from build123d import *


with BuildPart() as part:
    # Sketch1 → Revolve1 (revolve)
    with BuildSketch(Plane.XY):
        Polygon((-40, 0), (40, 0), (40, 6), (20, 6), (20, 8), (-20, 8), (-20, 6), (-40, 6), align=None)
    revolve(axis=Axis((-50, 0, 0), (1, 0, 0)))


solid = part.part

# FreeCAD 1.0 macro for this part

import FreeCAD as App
import Part
import Sketcher
from FreeCAD import Vector

doc = App.newDocument("Part")
body = doc.addObject("PartDesign::Body", "Body")

sketch1 = doc.addObject("Sketcher::SketchObject", "Sketch")
body.addObject(sketch1)
sketch1.AttachmentSupport = (doc.XY_Plane, [""])
sketch1.MapMode = "FlatFace"
sketch1.addGeometry([
    Part.LineSegment(Vector(-40, 0, 0), Vector(40, 0, 0)),
    Part.LineSegment(Vector(40, 0, 0), Vector(40, 6, 0)),
    Part.LineSegment(Vector(40, 6, 0), Vector(20, 6, 0)),
    Part.LineSegment(Vector(20, 6, 0), Vector(20, 8, 0)),
    Part.LineSegment(Vector(20, 8, 0), Vector(-20, 8, 0)),
    Part.LineSegment(Vector(-20, 8, 0), Vector(-20, 6, 0)),
    Part.LineSegment(Vector(-20, 6, 0), Vector(-40, 6, 0)),
    Part.LineSegment(Vector(-40, 6, 0), Vector(-40, 0, 0)),
], False)
sketch1.addConstraint([
    Sketcher.Constraint("Coincident", 0, 2, 1, 1),
    Sketcher.Constraint("Coincident", 1, 2, 2, 1),
    Sketcher.Constraint("Coincident", 2, 2, 3, 1),
    Sketcher.Constraint("Coincident", 3, 2, 4, 1),
    Sketcher.Constraint("Coincident", 4, 2, 5, 1),
    Sketcher.Constraint("Coincident", 5, 2, 6, 1),
    Sketcher.Constraint("Coincident", 6, 2, 7, 1),
    Sketcher.Constraint("Coincident", 7, 2, 0, 1),
    Sketcher.Constraint("Horizontal", 0),
    Sketcher.Constraint("Vertical", 1),
    Sketcher.Constraint("Horizontal", 2),
    Sketcher.Constraint("Vertical", 3),
    Sketcher.Constraint("Horizontal", 4),
    Sketcher.Constraint("Vertical", 5),
    Sketcher.Constraint("Horizontal", 6),
    Sketcher.Constraint("Vertical", 7),
    Sketcher.Constraint("Symmetric", 0, 2, 7, 2, -1, 1),
    Sketcher.Constraint("Symmetric", 2, 2, 5, 2, -2),
    Sketcher.Constraint("DistanceX", 0, 1, 0, 2, 80.0),
    Sketcher.Constraint("DistanceX", 2, 2, 2, 1, 20.0),
    Sketcher.Constraint("DistanceY", 1, 1, 1, 2, 6.0),
    Sketcher.Constraint("DistanceY", 3, 1, 3, 2, 2.0),
])
revolution = doc.addObject("PartDesign::Revolution", "Revolution")
body.addObject(revolution)
revolution.Profile = sketch1
revolution.ReferenceAxis = (sketch1, ["H_Axis"])
revolution.Angle = 360

doc.recompute()
